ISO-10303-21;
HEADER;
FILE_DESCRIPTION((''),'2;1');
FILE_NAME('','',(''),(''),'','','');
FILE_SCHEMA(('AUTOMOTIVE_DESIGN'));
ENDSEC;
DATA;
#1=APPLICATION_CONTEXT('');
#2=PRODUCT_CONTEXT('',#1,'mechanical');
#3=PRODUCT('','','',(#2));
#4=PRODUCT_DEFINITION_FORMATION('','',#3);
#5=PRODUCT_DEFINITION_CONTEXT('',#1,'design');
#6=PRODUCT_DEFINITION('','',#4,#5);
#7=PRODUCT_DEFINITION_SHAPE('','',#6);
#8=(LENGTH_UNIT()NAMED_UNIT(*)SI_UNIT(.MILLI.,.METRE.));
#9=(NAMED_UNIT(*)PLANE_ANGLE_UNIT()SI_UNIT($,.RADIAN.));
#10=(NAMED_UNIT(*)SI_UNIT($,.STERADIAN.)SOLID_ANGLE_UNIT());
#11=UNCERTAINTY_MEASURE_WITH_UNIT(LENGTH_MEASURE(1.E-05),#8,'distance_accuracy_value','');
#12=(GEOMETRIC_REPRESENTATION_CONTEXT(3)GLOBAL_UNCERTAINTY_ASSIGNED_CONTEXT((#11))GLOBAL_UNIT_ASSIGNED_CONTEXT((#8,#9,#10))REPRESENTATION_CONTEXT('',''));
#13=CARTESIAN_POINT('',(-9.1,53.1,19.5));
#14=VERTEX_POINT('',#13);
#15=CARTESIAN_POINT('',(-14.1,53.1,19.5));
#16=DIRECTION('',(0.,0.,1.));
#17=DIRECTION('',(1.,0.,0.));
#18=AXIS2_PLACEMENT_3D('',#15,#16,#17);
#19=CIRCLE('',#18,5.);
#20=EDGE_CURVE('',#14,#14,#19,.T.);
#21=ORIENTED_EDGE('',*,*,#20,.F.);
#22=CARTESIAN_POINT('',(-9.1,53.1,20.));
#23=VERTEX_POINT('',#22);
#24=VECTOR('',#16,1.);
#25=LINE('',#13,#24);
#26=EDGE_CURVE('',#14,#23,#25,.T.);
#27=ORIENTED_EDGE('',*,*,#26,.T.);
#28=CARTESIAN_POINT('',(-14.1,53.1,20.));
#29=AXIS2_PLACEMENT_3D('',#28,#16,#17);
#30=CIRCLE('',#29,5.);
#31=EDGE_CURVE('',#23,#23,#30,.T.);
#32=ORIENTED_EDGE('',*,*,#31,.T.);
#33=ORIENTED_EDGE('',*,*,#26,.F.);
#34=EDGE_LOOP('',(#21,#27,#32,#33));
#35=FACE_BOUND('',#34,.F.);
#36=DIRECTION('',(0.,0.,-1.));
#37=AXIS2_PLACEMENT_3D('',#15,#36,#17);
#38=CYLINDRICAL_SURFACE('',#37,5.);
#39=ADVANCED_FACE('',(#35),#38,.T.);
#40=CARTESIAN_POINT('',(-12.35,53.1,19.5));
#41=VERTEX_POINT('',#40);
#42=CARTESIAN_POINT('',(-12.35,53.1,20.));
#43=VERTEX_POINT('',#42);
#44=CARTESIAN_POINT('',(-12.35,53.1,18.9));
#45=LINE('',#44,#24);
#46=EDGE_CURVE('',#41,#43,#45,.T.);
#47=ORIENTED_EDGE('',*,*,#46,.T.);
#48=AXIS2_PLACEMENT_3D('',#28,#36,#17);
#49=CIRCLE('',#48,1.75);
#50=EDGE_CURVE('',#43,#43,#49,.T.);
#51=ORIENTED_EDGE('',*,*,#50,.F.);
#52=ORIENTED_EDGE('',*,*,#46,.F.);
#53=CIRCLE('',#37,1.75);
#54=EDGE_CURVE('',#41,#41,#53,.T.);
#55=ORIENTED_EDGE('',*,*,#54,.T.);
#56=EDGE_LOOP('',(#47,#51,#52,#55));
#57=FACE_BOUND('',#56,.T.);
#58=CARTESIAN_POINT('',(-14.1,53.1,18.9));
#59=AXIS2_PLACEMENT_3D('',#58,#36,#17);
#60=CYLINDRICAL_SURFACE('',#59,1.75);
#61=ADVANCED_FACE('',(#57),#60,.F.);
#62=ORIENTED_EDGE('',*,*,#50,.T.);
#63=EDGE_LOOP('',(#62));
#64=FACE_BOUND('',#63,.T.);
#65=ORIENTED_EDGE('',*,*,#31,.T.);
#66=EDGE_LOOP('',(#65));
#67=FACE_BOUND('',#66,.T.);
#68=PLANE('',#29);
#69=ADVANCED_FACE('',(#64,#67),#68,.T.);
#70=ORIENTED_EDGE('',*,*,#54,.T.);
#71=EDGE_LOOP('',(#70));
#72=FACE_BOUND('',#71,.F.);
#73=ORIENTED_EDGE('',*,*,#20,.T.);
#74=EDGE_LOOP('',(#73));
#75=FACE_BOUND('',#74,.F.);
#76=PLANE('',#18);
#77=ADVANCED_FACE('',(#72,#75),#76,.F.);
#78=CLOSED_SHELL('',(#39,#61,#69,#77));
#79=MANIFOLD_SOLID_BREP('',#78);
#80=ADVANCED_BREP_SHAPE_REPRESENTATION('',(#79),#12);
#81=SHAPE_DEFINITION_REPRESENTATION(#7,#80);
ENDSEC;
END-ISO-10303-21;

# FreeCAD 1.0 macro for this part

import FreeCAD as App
import Part
import Sketcher
Q = App.Units.Quantity

doc = App.newDocument("Part")
body = doc.addObject("PartDesign::Body", "Body")

# Sketch on XY plane
sketch1 = body.newObject("Sketcher::SketchObject", "Sketch")
sketch1.AttachmentSupport = (doc.getObject("XY_Plane"), [""])
sketch1.MapMode = "FlatFace"
sketch1.AttachmentOffset = App.Placement(App.Vector(0, 0, 24.6), App.Rotation())
sketch1.addGeometry(Part.Circle(App.Vector(-29.1, 53.1, 0), App.Vector(0, 0, 1), 1.8), False)
sketch1.addConstraint(Sketcher.Constraint("Diameter", 0, Q("3.5 mm")))
sketch1.addConstraint(Sketcher.Constraint("DistanceX", 0, 3, -1, 1, Q("29.1 mm")))
sketch1.addConstraint(Sketcher.Constraint("DistanceY", -1, 1, 0, 3, Q("53.1 mm")))
pad1 = body.newObject("PartDesign::Pad", "Pad")
pad1.Profile = sketch1
pad1.Length = 1.5
body2 = doc.addObject("PartDesign::Body", "Body001")

# Sketch on XY plane
sketch2 = body2.newObject("Sketcher::SketchObject", "Sketch001")
sketch2.AttachmentSupport = (doc.getObject("XY_Plane001"), [""])
sketch2.MapMode = "FlatFace"
sketch2.AttachmentOffset = App.Placement(App.Vector(0, 0, 25.2), App.Rotation())
sketch2.addGeometry(Part.Circle(App.Vector(-29, 53, 0), App.Vector(0, 0, 1), 5), False)
sketch2.addConstraint(Sketcher.Constraint("Diameter", 0, Q("10 mm")))
sketch2.addConstraint(Sketcher.Constraint("DistanceX", 0, 3, -1, 1, Q("29.1 mm")))
sketch2.addConstraint(Sketcher.Constraint("DistanceY", -1, 1, 0, 3, Q("53.1 mm")))
pad2 = body2.newObject("PartDesign::Pad", "Pad001")
pad2.Profile = sketch2
pad2.Length = 0.5
doc.recompute()

boolean = body2.newObject("PartDesign::Boolean", "Boolean")
boolean.Type = "Cut"
boolean.addObjects([body])
body3 = doc.addObject("PartDesign::Body", "Body002")
doc.recompute()

body2.Placement = App.Placement(App.Vector(15, 0, -5.7), App.Rotation(App.Vector(0, 0, 1), 0))
boolean2 = body3.newObject("PartDesign::Boolean", "Boolean001")
boolean2.Type = "Fuse"
boolean2.addObjects([body2])

doc.recompute()
